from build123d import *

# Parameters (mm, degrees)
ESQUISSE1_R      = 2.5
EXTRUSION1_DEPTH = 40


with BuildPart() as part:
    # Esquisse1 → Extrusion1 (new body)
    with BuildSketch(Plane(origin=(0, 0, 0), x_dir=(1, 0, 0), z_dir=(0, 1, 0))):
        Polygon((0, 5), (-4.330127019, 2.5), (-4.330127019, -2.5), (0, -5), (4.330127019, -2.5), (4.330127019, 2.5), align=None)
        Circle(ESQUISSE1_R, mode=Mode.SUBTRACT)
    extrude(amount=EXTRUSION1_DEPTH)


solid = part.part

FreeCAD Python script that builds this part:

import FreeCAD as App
import Part
import Sketcher

V = App.Vector
Q = App.Units.Quantity

doc = App.newDocument("Part")
body = doc.addObject("PartDesign::Body", "Body")

# Sketch on XZ plane
sketch1 = body.newObject("Sketcher::SketchObject", "Sketch")
sketch1.AttachmentSupport = (doc.getObject("XZ_Plane"), [""])
sketch1.MapMode = "FlatFace"
sketch1.addGeometry(Part.LineSegment(V(0, -5, 0), V(-4.3, -2.5, 0)), False)
sketch1.addGeometry(Part.LineSegment(V(-4.3, -2.5, 0), V(-4.3, 2.5, 0)), False)
sketch1.addGeometry(Part.LineSegment(V(-4.3, 2.5, 0), V(0, 5, 0)), False)
sketch1.addGeometry(Part.LineSegment(V(0, 5, 0), V(4.3, 2.5, 0)), False)
sketch1.addGeometry(Part.LineSegment(V(4.3, 2.5, 0), V(4.3, -2.5, 0)), False)
sketch1.addGeometry(Part.LineSegment(V(4.3, -2.5, 0), V(0, -5, 0)), False)
sketch1.addGeometry(Part.Circle(V(0, 0, 0), V(0, 0, 1), 2.5), False)
sketch1.addConstraint(Sketcher.Constraint("Coincident", 0, 2, 1, 1))
sketch1.addConstraint(Sketcher.Constraint("Coincident", 1, 2, 2, 1))
sketch1.addConstraint(Sketcher.Constraint("Coincident", 2, 2, 3, 1))
sketch1.addConstraint(Sketcher.Constraint("Coincident", 3, 2, 4, 1))
sketch1.addConstraint(Sketcher.Constraint("Coincident", 4, 2, 5, 1))
sketch1.addConstraint(Sketcher.Constraint("Coincident", 5, 2, 0, 1))
sketch1.addConstraint(Sketcher.Constraint("Vertical", 1))
sketch1.addConstraint(Sketcher.Constraint("Vertical", 4))
sketch1.addConstraint(Sketcher.Constraint("Coincident", 6, 3, -1, 1))
sketch1.addConstraint(Sketcher.Constraint("Symmetric", 0, 2, 3, 2, -1, 1))
sketch1.addConstraint(Sketcher.Constraint("Symmetric", 2, 2, 5, 2, -1, 1))
sketch1.addConstraint(Sketcher.Constraint("PointOnObject", 2, 2, -2))
sketch1.addConstraint(Sketcher.Constraint("Parallel", 2, 5))
sketch1.addConstraint(Sketcher.Constraint("Horizontal", 1, 2, 3, 2))
sketch1.addConstraint(Sketcher.Constraint("Diameter", 6, Q("5 mm")))
sketch1.addConstraint(Sketcher.Constraint("DistanceY", 1, 1, 1, 2, Q("5 mm")))
sketch1.addConstraint(Sketcher.Constraint("Angle", 0, Q("150 deg")))
sketch1.addConstraint(Sketcher.Constraint("Distance", 0, Q("5 mm")))
pad1 = body.newObject("PartDesign::Pad", "Pad")
pad1.Profile = sketch1
pad1.Length = 40
pad1.Reversed = True

doc.recompute()
